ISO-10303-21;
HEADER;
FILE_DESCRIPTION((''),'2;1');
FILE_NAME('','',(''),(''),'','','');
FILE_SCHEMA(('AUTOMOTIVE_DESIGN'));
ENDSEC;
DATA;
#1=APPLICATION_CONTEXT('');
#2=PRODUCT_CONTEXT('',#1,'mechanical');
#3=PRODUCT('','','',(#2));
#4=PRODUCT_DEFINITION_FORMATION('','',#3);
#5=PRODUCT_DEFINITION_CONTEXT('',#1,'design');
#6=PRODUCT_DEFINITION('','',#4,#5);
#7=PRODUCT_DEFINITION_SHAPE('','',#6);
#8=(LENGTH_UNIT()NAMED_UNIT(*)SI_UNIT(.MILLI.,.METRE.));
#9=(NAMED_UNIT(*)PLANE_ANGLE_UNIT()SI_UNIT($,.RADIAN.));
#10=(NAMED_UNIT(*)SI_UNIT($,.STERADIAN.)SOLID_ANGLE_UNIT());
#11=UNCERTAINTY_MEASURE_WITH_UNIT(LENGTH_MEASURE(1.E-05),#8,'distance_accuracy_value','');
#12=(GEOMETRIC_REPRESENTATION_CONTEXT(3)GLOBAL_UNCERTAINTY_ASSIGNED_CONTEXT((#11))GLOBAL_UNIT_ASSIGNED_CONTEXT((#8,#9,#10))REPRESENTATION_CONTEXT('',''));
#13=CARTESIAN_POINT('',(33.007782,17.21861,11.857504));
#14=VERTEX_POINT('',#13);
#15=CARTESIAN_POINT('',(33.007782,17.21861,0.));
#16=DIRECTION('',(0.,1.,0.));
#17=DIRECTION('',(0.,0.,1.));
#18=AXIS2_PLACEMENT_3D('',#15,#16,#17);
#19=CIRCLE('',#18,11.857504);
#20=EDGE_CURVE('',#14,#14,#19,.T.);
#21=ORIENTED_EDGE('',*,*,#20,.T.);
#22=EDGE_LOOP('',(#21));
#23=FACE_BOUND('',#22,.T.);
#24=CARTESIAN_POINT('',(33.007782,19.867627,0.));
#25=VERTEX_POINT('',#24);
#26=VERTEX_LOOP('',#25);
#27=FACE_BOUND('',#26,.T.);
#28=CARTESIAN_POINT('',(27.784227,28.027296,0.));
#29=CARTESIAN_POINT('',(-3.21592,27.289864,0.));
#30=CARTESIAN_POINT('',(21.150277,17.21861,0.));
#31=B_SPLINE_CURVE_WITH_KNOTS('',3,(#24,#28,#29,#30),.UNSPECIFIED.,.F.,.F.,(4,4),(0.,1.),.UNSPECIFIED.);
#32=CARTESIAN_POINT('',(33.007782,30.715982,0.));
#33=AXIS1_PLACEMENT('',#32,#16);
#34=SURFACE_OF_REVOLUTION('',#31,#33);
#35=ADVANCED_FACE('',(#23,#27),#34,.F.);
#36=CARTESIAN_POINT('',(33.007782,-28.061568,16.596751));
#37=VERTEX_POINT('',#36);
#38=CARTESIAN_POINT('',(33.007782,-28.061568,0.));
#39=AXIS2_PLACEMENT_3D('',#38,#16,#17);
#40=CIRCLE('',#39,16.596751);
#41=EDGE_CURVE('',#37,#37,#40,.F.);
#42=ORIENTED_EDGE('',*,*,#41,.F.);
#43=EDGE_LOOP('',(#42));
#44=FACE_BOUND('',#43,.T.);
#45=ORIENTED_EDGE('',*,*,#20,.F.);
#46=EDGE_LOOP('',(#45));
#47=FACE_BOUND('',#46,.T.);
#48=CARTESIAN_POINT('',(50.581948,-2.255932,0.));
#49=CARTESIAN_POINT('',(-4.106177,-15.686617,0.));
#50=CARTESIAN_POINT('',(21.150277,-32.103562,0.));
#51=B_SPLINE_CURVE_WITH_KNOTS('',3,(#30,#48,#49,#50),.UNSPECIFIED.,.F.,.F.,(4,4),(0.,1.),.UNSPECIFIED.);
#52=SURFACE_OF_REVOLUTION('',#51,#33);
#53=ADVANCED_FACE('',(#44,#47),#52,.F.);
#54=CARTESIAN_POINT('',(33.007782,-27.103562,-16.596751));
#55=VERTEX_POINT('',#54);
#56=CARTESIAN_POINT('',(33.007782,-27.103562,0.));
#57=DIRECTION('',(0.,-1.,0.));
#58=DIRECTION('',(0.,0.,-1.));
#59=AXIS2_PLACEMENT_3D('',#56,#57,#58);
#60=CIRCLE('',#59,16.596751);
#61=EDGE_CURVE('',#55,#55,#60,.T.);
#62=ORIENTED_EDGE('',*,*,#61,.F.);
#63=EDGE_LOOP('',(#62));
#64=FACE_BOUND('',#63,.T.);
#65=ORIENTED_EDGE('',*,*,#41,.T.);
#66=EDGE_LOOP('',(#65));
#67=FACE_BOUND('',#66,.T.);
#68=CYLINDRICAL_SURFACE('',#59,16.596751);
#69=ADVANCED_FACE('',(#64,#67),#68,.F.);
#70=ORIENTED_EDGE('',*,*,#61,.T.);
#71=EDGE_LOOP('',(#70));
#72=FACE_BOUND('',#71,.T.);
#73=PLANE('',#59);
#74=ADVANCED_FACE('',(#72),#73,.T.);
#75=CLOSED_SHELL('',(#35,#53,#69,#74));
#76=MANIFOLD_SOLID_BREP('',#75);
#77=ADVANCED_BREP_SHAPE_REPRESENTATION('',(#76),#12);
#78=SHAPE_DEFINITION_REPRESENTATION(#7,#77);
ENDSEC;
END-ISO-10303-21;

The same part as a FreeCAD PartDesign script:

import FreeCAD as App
import Part
import Sketcher

V = App.Vector
Q = App.Units.Quantity

doc = App.newDocument("Part")
body = doc.addObject("PartDesign::Body", "Body")

sketch1 = doc.addObject("Sketcher::SketchObject", "Sketch")
body.addObject(sketch1)
sketch1.AttachmentSupport = (doc.XY_Plane, [""])
sketch1.MapMode = "FlatFace"
sketch1.addGeometry([
    Part.LineSegment(V(21.150277, -32.103562, 0), V(33.007782, -32.103562, 0)),
    Part.LineSegment(V(33.007782, -32.103562, 0), V(33.007782, 19.867627, 0)),
    Part.BSplineCurve([V(21.150277, 17.21861, 0), V(-3.21592, 27.289864, 0), V(27.784227, 28.027296, 0), V(33.007782, 19.867627, 0)], [4, 4], [0, 1], False, 3, [1, 1, 1, 1], False),
    Part.BSplineCurve([V(21.150277, 17.21861, 0), V(50.581948, -2.255932, 0), V(-4.106177, -15.686617, 0), V(21.150277, -32.103562, 0)], [4, 4], [0, 1], False, 3, [1, 1, 1, 1], False),
], False)
sketch1.addGeometry(Part.LineSegment(V(33.007782, 19.867627, 0), V(33.007782, -32.103562, 0)), True)
sketch1.addConstraint([
    Sketcher.Constraint("Block", 2),
    Sketcher.Constraint("Block", 3),
    Sketcher.Constraint("Coincident", 0, 2, 1, 1),
    Sketcher.Constraint("Coincident", 1, 2, 2, 2),
    Sketcher.Constraint("Coincident", 3, 2, 0, 1),
    Sketcher.Constraint("Horizontal", 0),
    Sketcher.Constraint("Vertical", 1),
    Sketcher.Constraint("Vertical", 4),
    Sketcher.Constraint("Coincident", 4, 1, 1, 2),
    Sketcher.Constraint("Equal", 1, 4),
])
revolution = doc.addObject("PartDesign::Revolution", "Revolution")
body.addObject(revolution)
revolution.Profile = sketch1
revolution.ReferenceAxis = (sketch1, ["Axis0"])
revolution.Angle = 360

sketch2 = doc.addObject("Sketcher::SketchObject", "Sketch001")
body.addObject(sketch2)
sketch2.AttachmentSupport = (doc.XZ_Plane, [""])
sketch2.MapMode = "FlatFace"
sketch2.AttachmentOffset = App.Placement(V(0, 0, 32.103562), App.Rotation())
sketch2.addGeometry(Part.Circle(V(33, 0, 0), V(0, 0, 1), 17), False)
sketch2.addConstraint([
    Sketcher.Constraint("PointOnObject", 0, 3, -1),
    Sketcher.Constraint("Diameter", 0, Q("33.193501 mm")),
    Sketcher.Constraint("DistanceX", -1, 1, 0, 3, Q("33.007782 mm")),
])
pocket1 = doc.addObject("PartDesign::Pocket", "Pocket")
body.addObject(pocket1)
pocket1.Profile = sketch2
pocket1.Length = 5

doc.recompute()
